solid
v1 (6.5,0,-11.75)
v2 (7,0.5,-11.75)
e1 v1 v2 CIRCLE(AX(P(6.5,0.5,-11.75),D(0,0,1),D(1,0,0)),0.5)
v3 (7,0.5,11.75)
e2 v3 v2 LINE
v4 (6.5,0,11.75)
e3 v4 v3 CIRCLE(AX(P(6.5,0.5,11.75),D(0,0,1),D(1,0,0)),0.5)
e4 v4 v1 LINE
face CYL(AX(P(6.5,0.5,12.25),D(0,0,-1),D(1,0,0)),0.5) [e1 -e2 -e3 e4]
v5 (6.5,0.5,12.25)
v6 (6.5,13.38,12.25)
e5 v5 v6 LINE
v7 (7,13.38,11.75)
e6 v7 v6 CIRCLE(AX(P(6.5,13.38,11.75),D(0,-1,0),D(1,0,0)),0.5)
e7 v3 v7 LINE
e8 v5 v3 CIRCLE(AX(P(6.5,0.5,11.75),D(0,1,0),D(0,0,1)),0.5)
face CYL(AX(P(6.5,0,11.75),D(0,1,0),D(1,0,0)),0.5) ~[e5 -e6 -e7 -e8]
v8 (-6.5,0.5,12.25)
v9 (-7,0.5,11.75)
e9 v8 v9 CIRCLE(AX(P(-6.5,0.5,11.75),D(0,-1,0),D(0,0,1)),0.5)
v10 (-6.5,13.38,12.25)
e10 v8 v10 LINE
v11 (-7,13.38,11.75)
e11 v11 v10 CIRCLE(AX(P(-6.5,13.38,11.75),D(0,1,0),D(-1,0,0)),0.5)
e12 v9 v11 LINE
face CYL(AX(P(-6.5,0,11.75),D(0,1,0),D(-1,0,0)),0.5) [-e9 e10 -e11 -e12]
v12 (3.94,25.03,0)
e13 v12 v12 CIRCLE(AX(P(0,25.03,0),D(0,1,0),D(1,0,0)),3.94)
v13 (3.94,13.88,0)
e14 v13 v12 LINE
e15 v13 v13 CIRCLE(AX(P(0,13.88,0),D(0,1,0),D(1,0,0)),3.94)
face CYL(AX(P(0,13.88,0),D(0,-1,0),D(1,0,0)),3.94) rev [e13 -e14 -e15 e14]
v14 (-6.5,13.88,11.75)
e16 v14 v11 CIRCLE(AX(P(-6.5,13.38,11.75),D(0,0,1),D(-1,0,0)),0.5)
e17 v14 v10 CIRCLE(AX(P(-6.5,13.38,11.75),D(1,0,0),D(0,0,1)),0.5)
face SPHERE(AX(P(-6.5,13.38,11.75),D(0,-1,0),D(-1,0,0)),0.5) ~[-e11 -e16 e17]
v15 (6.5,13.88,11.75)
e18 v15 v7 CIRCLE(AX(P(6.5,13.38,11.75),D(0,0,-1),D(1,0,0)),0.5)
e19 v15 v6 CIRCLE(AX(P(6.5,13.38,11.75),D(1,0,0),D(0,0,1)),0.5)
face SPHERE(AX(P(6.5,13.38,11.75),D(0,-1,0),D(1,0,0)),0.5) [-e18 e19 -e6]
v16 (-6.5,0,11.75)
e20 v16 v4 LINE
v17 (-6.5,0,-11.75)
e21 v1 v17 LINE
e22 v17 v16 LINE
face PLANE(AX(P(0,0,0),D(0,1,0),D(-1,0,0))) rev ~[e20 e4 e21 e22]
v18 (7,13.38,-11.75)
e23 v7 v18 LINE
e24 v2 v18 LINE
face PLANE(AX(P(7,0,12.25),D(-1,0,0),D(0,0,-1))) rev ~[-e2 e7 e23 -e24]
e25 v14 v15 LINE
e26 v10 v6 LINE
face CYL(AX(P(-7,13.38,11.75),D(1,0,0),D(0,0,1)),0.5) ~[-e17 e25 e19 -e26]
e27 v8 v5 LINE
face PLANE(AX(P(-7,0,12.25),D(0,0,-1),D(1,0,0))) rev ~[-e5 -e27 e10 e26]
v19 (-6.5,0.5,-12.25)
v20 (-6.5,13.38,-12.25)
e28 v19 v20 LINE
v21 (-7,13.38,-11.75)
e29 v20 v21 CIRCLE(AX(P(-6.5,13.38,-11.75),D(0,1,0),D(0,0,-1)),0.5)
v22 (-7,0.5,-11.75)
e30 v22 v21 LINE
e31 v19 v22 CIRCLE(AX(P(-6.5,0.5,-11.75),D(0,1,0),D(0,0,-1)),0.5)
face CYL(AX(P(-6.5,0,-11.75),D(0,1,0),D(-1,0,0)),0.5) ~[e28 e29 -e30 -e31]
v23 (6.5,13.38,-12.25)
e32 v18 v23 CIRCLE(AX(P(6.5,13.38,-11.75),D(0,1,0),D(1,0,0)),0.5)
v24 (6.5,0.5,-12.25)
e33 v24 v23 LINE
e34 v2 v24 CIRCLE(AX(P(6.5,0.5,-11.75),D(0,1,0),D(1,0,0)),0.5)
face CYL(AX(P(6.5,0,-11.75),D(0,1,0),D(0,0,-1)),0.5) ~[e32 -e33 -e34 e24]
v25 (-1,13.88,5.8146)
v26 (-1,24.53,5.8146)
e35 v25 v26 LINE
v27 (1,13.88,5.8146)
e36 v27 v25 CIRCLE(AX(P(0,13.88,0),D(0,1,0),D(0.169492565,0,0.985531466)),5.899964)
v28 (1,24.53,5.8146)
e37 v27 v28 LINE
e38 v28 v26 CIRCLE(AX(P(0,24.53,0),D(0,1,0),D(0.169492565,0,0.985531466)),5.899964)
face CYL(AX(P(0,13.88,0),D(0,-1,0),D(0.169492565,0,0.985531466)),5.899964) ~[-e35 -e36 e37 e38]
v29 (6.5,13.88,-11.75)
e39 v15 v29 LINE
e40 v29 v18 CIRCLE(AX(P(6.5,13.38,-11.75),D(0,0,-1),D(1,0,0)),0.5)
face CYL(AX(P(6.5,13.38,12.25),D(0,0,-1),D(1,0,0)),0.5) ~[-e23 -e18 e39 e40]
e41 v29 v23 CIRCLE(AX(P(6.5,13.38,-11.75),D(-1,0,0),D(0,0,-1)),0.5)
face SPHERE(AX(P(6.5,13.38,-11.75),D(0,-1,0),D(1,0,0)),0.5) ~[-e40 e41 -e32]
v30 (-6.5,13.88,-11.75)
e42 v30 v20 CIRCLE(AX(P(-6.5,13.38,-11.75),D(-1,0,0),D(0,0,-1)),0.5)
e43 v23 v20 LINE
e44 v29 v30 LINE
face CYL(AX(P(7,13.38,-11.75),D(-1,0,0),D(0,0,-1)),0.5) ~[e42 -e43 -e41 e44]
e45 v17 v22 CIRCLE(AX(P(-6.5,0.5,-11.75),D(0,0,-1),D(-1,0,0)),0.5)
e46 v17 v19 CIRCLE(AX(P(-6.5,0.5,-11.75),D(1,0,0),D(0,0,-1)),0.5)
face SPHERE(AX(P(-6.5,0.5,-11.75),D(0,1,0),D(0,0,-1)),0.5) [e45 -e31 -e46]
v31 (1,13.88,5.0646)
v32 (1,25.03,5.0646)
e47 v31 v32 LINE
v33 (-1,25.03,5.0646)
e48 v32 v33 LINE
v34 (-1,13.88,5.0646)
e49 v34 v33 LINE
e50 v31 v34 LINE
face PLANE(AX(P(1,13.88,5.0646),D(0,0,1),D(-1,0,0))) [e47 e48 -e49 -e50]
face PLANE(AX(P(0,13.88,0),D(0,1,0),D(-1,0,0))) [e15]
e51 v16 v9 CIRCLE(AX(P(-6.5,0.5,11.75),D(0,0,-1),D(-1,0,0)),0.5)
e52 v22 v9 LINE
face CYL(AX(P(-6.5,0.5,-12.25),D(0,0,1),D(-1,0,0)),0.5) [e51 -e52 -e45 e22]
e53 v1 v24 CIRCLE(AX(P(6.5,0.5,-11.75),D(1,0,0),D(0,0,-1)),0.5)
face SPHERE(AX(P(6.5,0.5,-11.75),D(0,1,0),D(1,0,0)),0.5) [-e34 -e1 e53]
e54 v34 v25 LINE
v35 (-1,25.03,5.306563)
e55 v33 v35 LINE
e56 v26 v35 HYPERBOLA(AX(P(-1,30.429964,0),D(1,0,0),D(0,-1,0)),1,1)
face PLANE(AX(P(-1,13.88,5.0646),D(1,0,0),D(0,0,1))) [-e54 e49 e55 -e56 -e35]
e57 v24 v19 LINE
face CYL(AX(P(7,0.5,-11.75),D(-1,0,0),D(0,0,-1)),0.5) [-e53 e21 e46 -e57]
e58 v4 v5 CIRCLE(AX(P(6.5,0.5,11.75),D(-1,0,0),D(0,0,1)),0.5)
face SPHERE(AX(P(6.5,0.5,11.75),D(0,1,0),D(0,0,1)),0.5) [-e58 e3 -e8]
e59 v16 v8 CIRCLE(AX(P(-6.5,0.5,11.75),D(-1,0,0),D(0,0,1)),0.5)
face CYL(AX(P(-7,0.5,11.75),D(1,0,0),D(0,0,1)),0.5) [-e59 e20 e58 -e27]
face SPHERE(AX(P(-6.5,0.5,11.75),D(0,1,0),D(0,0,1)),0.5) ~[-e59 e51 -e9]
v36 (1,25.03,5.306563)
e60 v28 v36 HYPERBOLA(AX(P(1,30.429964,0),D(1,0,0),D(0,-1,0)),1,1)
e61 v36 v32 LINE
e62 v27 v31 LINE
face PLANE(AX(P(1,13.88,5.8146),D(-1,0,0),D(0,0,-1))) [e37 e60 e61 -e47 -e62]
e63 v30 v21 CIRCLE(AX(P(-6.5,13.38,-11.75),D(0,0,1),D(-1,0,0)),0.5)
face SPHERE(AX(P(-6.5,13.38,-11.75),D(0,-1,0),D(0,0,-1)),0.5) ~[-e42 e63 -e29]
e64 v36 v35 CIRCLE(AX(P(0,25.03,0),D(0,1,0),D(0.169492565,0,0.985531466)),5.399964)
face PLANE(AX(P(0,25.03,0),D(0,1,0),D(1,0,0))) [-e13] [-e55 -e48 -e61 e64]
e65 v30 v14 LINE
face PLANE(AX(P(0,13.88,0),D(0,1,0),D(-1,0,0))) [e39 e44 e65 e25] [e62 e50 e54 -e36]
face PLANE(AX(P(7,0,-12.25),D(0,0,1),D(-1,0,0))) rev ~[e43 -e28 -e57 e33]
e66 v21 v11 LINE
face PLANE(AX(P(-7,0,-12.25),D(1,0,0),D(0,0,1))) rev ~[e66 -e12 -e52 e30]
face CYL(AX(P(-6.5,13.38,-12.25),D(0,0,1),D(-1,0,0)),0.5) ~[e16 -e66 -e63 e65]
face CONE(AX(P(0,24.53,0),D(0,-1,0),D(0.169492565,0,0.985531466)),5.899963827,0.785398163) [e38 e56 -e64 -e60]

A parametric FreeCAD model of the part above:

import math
import FreeCAD as App
import Part
import Sketcher

V = App.Vector
Q = App.Units.Quantity


def edges_at(feature, points):
    """Names of the edges that pass closest to the given points."""
    edges = feature.Shape.Edges
    near = lambda p: min(range(len(edges)), key=lambda i: edges[i].distToShape(Part.Vertex(*p))[0])
    return sorted({f"Edge{near(p) + 1}" for p in points})


def add_polygon(sketch, points):
    """Adds a closed chain of lines whose ends are joined by coincident constraints."""
    first, n = sketch.GeometryCount, len(points)
    for a, b in zip(points, points[1:] + points[:1]):
        sketch.addGeometry(Part.LineSegment(App.Vector(*a, 0), App.Vector(*b, 0)), False)
    for i in range(n):
        sketch.addConstraint(Sketcher.Constraint("Coincident", first + i, 2, first + (i + 1) % n, 1))

doc = App.newDocument("Part")
body = doc.addObject("PartDesign::Body", "Body")

sketch1 = body.newObject("Sketcher::SketchObject", "Sketch")
sketch1.AttachmentSupport = (doc.getObject("XZ_Plane"), [""])
sketch1.MapMode = "FlatFace"
add_polygon(sketch1, [(-7, -12), (-7, 12), (7, 12), (7, -12)])
sketch1.addConstraint([
    Sketcher.Constraint("Vertical", 0),
    Sketcher.Constraint("Horizontal", 1),
    Sketcher.Constraint("Vertical", 2),
    Sketcher.Constraint("Horizontal", 3),
    Sketcher.Constraint("Symmetric", 0, 2, 2, 2, -1, 1),
    Sketcher.Constraint("DistanceX", 1, 1, 1, 2, Q("14 mm")),
    Sketcher.Constraint("DistanceY", 0, 1, 0, 2, Q("24.5 mm")),
])
pad1 = body.newObject("PartDesign::Pad", "Pad")
pad1.Profile = sketch1
pad1.Length = 13.88
pad1.Reversed = True
doc.recompute()

fillet = body.newObject("PartDesign::Fillet", "Fillet")
fillet.Base = (pad1, ["Edge1"])
fillet.UseAllEdges = True
fillet.Radius = 0.5

sketch2 = body.newObject("Sketcher::SketchObject", "Sketch001")
sketch2.AttachmentSupport = (doc.getObject("XZ_Plane"), [""])
sketch2.MapMode = "FlatFace"
sketch2.AttachmentOffset = App.Placement(V(0, 0, -13.88), App.Rotation())
sketch2.addGeometry([
    Part.LineSegment(V(1, 5.1, 0), V(1, 5.8, 0)),
    Part.ArcOfCircle(Part.Circle(V(0, 0, 0), V(0, 0, 1), 5.9), math.radians(100), math.radians(440)),
    Part.LineSegment(V(-1, 5.8, 0), V(-1, 5.1, 0)),
    Part.LineSegment(V(-1, 5.1, 0), V(1, 5.1, 0)),
    Part.Circle(V(0, 0, 0), V(0, 0, 1), 3.9),
], False)
sketch2.addConstraint([
    Sketcher.Constraint("Coincident", 0, 2, 1, 2),
    Sketcher.Constraint("Coincident", 1, 1, 2, 1),
    Sketcher.Constraint("Coincident", 2, 2, 3, 1),
    Sketcher.Constraint("Coincident", 3, 2, 0, 1),
    Sketcher.Constraint("Vertical", 0),
    Sketcher.Constraint("Vertical", 2),
    Sketcher.Constraint("Horizontal", 3),
    Sketcher.Constraint("Coincident", 1, 3, -1, 1),
    Sketcher.Constraint("Coincident", 4, 3, -1, 1),
    Sketcher.Constraint("Horizontal", 0, 2, 1, 1),
    Sketcher.Constraint("Radius", 1, Q("5.9 mm")),
    Sketcher.Constraint("Diameter", 4, Q("7.88 mm")),
    Sketcher.Constraint("DistanceX", 3, 1, 3, 2, Q("2 mm")),
    Sketcher.Constraint("DistanceY", 0, 1, 0, 2, Q("0.75 mm")),
])
pad2 = body.newObject("PartDesign::Pad", "Pad001")
pad2.Profile = sketch2
pad2.Length = 11.15
pad2.Reversed = True
doc.recompute()

chamfer = body.newObject("PartDesign::Chamfer", "Chamfer")
chamfer.Base = (pad2, edges_at(pad2, [(0, 25.03, -5.9)]))
chamfer.Size = 0.5

doc.recompute()
